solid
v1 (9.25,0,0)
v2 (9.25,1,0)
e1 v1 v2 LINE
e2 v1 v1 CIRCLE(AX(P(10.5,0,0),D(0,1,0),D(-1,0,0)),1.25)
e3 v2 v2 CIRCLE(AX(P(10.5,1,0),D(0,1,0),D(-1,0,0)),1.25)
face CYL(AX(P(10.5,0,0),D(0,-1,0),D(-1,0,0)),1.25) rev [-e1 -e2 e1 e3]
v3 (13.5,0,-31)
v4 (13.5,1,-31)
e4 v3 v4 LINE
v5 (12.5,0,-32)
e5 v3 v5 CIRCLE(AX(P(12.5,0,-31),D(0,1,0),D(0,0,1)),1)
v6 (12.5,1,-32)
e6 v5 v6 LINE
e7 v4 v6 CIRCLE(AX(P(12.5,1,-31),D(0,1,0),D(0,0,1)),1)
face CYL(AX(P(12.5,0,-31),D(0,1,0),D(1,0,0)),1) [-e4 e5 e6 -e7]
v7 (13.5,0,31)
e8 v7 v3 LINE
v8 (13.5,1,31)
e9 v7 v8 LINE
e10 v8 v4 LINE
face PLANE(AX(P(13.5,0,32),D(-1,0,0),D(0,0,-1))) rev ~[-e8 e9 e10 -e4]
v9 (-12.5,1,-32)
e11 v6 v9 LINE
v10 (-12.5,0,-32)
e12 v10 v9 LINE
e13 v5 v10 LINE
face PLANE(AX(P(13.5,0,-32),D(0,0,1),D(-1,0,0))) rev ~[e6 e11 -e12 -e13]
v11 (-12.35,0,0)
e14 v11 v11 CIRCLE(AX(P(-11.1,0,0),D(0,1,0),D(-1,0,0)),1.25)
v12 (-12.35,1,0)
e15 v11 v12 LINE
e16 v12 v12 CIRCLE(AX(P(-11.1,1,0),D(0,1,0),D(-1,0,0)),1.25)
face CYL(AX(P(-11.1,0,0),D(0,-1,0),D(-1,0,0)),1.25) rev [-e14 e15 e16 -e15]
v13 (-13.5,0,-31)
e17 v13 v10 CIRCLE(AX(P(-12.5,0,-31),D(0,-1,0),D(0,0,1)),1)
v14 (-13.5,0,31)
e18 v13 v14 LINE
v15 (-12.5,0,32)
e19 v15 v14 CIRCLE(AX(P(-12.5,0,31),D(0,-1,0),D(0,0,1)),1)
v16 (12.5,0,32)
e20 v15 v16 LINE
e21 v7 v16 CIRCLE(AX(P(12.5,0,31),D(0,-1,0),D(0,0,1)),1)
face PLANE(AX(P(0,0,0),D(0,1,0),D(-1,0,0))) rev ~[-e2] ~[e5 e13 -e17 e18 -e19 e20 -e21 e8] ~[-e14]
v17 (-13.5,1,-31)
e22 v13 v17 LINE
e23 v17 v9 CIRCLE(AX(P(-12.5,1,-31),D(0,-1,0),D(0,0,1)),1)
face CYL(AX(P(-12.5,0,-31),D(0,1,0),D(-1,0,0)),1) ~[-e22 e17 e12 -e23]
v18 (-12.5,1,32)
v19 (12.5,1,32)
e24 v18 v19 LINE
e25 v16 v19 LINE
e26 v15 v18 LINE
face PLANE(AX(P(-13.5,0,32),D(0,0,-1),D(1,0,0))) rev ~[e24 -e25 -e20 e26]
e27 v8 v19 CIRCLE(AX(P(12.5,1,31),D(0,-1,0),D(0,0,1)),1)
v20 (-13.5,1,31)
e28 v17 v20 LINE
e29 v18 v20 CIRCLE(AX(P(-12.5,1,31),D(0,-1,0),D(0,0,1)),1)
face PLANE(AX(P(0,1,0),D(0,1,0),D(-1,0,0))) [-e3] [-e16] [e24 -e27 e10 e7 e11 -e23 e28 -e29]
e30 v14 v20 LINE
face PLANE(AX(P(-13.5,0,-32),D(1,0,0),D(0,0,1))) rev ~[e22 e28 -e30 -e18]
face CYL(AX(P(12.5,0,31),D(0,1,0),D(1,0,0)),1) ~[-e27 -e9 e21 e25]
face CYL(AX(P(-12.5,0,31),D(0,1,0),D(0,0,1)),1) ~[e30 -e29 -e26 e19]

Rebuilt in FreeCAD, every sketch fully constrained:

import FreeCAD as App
import Part
import Sketcher
from FreeCAD import Vector
Q = App.Units.Quantity


def edges_at(feature, points):
    """Names of the edges that pass closest to the given points."""
    edges = feature.Shape.Edges
    near = lambda p: min(range(len(edges)), key=lambda i: edges[i].distToShape(Part.Vertex(*p))[0])
    return sorted({f"Edge{near(p) + 1}" for p in points})

doc = App.newDocument("Part")
body = doc.addObject("PartDesign::Body", "Body")

# Sketch on XZ plane
sketch1 = body.newObject("Sketcher::SketchObject", "Sketch")
sketch1.AttachmentSupport = (doc.getObject("XZ_Plane"), [""])
sketch1.MapMode = "FlatFace"
sketch1.addGeometry([
    Part.LineSegment(Vector(13.5, 32, 0), Vector(13.5, -32, 0)),  # 0
    Part.LineSegment(Vector(13.5, -32, 0), Vector(-13.5, -32, 0)),  # 1
    Part.LineSegment(Vector(-13.5, -32, 0), Vector(-13.5, 32, 0)),  # 2
    Part.LineSegment(Vector(-13.5, 32, 0), Vector(13.5, 32, 0)),  # 3
    Part.Circle(Vector(10.5, 0, 0), Vector(0, 0, 1), 1.25),  # 4
    Part.Circle(Vector(-11.1, 0, 0), Vector(0, 0, 1), 1.25),  # 5
], False)
sketch1.addConstraint([
    Sketcher.Constraint("Coincident", 0, 2, 1, 1),
    Sketcher.Constraint("Coincident", 1, 2, 2, 1),
    Sketcher.Constraint("Coincident", 2, 2, 3, 1),
    Sketcher.Constraint("Coincident", 3, 2, 0, 1),
    Sketcher.Constraint("Vertical", 0),
    Sketcher.Constraint("Horizontal", 1),
    Sketcher.Constraint("Vertical", 2),
    Sketcher.Constraint("Horizontal", 3),
    Sketcher.Constraint("Equal", 4, 5),
    Sketcher.Constraint("Symmetric", 0, 2, 2, 2, -1, 1),
    Sketcher.Constraint("PointOnObject", 4, 3, -1),
    Sketcher.Constraint("PointOnObject", 5, 3, -1),
    Sketcher.Constraint("Diameter", 4, Q("2.5 mm")),
    Sketcher.Constraint("DistanceX", 1, 2, 1, 1, Q("27 mm")),
    Sketcher.Constraint("DistanceY", 0, 2, 0, 1, Q("64 mm")),
    Sketcher.Constraint("DistanceX", 4, 3, 0, 2, Q("3 mm")),
    Sketcher.Constraint("DistanceX", 5, 3, 4, 3, Q("21.6 mm")),
])
pad1 = body.newObject("PartDesign::Pad", "Pad")
pad1.Profile = sketch1
pad1.Length = 1
pad1.Reversed = True
doc.recompute()

fillet = body.newObject("PartDesign::Fillet", "Fillet")
fillet.Base = (pad1, edges_at(pad1, [
    (13.5, 0.5, 32),
    (-13.5, 0.5, 32),
    (13.5, 0.5, -32),
    (-13.5, 0.5, -32),
]))
fillet.Radius = 1

doc.recompute()
